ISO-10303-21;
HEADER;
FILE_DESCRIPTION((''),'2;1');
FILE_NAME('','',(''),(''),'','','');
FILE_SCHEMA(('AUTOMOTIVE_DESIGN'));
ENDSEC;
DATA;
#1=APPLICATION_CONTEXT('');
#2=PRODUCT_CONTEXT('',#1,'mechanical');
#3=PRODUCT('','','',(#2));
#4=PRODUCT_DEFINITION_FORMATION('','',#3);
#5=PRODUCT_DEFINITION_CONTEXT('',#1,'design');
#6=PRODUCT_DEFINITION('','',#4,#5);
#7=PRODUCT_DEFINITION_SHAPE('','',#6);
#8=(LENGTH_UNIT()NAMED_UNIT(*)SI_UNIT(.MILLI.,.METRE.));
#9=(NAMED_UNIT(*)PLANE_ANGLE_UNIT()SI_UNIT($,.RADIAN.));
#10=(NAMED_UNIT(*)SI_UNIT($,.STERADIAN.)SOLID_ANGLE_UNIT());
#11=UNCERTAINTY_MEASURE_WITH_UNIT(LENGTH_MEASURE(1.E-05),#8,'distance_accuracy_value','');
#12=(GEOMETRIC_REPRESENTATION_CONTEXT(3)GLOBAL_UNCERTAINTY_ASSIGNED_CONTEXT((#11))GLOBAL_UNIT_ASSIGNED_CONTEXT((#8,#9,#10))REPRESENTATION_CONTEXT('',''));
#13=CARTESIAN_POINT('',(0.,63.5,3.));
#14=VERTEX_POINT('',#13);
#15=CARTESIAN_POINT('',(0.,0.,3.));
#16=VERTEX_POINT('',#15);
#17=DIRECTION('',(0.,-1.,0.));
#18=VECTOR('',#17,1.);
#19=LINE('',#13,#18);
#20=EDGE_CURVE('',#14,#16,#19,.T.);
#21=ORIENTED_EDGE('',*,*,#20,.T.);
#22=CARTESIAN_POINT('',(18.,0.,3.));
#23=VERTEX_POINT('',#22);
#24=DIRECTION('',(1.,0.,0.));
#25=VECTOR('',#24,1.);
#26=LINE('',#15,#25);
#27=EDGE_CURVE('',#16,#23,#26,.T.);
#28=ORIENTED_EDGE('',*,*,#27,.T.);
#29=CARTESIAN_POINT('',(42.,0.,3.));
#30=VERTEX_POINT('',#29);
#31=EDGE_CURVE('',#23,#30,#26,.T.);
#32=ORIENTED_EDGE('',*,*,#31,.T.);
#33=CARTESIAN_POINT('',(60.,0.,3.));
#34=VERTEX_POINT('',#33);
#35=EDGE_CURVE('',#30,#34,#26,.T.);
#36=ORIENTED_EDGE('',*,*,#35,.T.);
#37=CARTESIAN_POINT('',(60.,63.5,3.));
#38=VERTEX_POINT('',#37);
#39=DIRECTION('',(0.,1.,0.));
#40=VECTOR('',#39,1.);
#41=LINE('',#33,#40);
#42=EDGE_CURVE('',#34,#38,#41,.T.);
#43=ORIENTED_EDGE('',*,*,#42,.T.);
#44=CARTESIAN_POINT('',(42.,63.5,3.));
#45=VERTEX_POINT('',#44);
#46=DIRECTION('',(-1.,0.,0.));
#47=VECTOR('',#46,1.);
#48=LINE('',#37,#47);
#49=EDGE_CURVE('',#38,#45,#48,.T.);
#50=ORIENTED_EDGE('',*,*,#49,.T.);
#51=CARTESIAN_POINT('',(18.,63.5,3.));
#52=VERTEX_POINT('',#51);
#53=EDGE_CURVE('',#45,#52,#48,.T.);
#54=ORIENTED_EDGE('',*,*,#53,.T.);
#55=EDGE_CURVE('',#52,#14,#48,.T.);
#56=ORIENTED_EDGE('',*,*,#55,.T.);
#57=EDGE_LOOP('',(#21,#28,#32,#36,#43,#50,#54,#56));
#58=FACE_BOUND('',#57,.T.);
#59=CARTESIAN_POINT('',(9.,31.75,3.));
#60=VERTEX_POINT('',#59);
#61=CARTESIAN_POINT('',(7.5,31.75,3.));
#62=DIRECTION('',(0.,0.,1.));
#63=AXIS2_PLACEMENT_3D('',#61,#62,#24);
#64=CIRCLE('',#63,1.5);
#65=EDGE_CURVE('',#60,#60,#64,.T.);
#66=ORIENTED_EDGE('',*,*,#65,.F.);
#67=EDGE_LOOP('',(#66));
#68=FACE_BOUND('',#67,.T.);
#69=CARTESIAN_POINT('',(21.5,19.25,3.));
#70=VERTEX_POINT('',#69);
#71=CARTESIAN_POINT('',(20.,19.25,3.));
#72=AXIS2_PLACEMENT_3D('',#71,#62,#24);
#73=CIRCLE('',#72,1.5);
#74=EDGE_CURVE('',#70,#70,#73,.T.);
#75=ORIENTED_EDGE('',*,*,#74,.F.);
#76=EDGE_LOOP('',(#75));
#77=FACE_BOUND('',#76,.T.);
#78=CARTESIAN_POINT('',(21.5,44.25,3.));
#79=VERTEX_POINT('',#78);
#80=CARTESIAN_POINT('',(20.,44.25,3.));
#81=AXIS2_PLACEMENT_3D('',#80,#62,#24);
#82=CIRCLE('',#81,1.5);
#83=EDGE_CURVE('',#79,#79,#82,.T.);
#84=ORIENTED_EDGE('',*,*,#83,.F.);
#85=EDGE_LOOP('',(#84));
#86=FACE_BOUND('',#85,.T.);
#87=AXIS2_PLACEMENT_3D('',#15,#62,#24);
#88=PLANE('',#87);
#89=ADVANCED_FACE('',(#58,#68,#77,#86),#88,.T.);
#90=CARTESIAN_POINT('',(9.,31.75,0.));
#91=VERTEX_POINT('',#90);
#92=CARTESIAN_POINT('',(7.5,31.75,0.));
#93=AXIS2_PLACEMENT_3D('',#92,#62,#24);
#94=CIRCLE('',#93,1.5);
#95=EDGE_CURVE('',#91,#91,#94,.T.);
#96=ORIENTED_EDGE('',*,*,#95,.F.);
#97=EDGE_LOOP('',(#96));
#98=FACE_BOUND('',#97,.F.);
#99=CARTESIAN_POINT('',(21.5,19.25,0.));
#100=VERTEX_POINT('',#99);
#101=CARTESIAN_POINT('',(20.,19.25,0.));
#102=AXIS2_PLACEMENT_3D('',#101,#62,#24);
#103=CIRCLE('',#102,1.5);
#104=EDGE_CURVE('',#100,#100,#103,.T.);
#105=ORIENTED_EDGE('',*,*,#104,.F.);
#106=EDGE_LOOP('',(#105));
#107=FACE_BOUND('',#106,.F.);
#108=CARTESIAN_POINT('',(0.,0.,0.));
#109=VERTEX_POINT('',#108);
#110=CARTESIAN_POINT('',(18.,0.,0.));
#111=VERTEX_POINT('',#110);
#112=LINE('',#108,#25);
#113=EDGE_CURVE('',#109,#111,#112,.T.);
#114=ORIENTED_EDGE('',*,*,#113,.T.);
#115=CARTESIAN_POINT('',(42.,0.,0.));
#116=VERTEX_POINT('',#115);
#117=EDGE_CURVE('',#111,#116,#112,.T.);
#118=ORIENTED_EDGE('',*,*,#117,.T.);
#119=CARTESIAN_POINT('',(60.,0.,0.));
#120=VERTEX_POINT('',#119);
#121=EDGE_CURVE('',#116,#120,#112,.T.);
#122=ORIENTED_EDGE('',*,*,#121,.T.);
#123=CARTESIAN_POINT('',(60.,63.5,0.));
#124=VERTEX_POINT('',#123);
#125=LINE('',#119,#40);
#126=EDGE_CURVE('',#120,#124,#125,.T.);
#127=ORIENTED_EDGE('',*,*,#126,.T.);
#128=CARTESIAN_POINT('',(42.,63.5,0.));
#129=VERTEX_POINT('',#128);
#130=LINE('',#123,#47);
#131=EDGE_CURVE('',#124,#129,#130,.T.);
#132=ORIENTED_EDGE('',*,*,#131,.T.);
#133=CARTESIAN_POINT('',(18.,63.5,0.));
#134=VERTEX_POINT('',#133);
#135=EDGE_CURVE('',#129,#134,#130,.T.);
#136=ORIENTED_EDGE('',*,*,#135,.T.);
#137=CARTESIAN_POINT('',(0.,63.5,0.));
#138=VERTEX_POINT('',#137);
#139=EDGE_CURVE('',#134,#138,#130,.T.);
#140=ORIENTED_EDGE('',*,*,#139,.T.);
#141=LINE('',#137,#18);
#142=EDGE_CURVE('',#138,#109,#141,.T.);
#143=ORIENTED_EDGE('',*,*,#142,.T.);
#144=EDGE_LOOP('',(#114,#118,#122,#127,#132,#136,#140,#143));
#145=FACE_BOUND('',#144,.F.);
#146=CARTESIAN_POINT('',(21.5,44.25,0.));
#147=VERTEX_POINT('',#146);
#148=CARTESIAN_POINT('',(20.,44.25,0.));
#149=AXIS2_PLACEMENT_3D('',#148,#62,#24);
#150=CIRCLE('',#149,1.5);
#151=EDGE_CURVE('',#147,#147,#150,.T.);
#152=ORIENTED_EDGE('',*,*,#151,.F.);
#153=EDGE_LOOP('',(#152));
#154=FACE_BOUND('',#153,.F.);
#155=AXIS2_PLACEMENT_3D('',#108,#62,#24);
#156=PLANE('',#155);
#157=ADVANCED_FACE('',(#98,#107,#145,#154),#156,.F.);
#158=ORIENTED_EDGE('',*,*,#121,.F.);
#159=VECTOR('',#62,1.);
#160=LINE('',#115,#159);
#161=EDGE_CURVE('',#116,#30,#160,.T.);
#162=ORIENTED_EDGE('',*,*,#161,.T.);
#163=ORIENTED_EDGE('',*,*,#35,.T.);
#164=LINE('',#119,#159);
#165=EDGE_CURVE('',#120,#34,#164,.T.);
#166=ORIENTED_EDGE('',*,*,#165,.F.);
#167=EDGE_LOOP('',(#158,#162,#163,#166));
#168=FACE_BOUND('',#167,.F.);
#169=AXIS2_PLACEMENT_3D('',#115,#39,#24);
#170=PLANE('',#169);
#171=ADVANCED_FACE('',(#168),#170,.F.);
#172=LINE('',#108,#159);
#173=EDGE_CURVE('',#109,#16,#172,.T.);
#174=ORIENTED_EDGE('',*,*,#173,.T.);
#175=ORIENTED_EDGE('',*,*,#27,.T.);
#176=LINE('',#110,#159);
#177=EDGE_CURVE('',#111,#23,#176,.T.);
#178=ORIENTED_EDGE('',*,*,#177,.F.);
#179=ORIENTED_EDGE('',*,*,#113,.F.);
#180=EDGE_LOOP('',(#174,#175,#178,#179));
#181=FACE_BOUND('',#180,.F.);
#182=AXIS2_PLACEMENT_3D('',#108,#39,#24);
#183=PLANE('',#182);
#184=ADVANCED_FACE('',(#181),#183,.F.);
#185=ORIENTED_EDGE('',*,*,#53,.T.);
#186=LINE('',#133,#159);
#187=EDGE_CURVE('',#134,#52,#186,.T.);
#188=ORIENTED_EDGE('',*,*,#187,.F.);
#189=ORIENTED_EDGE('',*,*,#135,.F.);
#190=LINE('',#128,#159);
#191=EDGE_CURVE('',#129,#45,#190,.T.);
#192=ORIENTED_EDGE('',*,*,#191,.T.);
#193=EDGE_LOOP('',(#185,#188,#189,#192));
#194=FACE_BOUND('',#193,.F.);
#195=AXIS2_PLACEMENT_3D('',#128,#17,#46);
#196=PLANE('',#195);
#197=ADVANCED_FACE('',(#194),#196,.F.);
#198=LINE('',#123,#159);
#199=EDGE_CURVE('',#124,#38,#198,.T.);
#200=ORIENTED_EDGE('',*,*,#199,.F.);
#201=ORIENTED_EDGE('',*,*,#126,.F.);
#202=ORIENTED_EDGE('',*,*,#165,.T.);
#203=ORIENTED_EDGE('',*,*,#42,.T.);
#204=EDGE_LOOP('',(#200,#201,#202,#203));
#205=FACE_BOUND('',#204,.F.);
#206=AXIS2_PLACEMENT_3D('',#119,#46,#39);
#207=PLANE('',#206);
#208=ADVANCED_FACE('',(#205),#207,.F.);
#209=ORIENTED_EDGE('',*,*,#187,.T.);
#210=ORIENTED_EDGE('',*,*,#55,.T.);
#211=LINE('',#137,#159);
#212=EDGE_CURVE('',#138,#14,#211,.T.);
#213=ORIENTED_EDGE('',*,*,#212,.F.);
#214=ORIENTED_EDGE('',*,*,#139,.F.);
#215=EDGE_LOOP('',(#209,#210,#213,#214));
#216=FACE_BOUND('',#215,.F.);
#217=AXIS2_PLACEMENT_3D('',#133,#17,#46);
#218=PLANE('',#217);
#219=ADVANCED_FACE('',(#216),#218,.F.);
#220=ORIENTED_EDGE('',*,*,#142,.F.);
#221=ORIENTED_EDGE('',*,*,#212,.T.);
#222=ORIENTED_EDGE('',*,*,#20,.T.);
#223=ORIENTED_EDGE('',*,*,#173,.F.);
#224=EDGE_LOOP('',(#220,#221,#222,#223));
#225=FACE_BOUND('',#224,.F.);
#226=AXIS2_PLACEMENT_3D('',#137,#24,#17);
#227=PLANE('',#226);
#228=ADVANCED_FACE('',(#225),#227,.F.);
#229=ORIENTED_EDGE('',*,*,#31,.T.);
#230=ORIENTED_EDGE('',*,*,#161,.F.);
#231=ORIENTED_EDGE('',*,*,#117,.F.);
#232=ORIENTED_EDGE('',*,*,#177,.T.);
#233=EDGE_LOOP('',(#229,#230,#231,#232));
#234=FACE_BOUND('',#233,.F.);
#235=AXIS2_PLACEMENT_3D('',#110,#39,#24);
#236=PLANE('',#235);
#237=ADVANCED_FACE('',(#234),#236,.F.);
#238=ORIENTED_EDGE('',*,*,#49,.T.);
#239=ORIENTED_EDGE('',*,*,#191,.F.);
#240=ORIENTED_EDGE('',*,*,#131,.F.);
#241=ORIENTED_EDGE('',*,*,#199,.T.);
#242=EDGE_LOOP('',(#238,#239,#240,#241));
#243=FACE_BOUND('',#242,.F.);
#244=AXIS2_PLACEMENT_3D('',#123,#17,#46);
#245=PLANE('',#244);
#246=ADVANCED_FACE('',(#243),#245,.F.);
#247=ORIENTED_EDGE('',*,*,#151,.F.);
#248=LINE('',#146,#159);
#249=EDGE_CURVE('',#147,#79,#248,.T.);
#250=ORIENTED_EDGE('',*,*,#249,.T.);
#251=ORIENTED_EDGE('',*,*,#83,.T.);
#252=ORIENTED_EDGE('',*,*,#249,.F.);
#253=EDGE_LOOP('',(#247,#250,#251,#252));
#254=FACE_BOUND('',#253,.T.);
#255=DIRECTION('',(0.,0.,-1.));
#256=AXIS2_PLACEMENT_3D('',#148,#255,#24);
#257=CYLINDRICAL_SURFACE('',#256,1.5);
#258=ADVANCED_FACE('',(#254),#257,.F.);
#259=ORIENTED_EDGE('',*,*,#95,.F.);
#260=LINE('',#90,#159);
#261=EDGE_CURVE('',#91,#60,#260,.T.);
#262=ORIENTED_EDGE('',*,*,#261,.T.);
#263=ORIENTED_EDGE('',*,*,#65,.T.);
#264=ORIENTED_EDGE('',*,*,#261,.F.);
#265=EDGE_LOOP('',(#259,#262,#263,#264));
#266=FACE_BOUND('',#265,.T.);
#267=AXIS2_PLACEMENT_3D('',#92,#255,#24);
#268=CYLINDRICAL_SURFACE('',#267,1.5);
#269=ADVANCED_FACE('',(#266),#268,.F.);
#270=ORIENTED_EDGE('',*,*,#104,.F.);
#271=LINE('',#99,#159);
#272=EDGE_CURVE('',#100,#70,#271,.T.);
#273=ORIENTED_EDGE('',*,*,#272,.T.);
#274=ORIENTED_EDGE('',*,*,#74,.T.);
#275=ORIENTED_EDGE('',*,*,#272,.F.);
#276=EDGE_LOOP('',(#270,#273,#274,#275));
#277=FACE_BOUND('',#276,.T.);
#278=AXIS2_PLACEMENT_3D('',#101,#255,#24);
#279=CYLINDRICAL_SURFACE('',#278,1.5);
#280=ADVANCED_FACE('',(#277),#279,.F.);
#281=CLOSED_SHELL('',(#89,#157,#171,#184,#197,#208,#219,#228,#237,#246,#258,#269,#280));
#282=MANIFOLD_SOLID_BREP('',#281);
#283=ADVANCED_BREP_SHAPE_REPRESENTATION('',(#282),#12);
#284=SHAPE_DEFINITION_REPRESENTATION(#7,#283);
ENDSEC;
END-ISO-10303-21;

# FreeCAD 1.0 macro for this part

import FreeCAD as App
import Part
import Sketcher
from FreeCAD import Vector
Q = App.Units.Quantity

doc = App.newDocument("Part")
body = doc.addObject("PartDesign::Body", "Body")

sketch1 = body.newObject("Sketcher::SketchObject", "Sketch")
sketch1.AttachmentSupport = (doc.getObject("XY_Plane"), [""])
sketch1.MapMode = "FlatFace"
sketch1.addGeometry(Part.LineSegment(Vector(0, 63.5, 0), Vector(0, 0, 0)), False)
sketch1.addGeometry(Part.LineSegment(Vector(0, 0, 0), Vector(60, 0, 0)), False)
sketch1.addGeometry(Part.LineSegment(Vector(60, 0, 0), Vector(60, 63.5, 0)), False)
sketch1.addGeometry(Part.LineSegment(Vector(60, 63.5, 0), Vector(0, 63.5, 0)), False)
sketch1.addGeometry(Part.Circle(Vector(20, 19.2, 0), Vector(0, 0, 1), 1.5), False)
sketch1.addGeometry(Part.Circle(Vector(7.5, 31.8, 0), Vector(0, 0, 1), 1.5), False)
sketch1.addGeometry(Part.Circle(Vector(20, 44.2, 0), Vector(0, 0, 1), 1.5), False)
sketch1.addConstraint(Sketcher.Constraint("Coincident", 0, 2, 1, 1))
sketch1.addConstraint(Sketcher.Constraint("Coincident", 1, 2, 2, 1))
sketch1.addConstraint(Sketcher.Constraint("Coincident", 2, 2, 3, 1))
sketch1.addConstraint(Sketcher.Constraint("Coincident", 3, 2, 0, 1))
sketch1.addConstraint(Sketcher.Constraint("Vertical", 0))
sketch1.addConstraint(Sketcher.Constraint("Horizontal", 1))
sketch1.addConstraint(Sketcher.Constraint("Vertical", 2))
sketch1.addConstraint(Sketcher.Constraint("Horizontal", 3))
sketch1.addConstraint(Sketcher.Constraint("Coincident", 0, 2, -1, 1))
sketch1.addConstraint(Sketcher.Constraint("Equal", 4, 5))
sketch1.addConstraint(Sketcher.Constraint("Equal", 5, 6))
sketch1.addConstraint(Sketcher.Constraint("Vertical", 4, 3, 6, 3))
sketch1.addConstraint(Sketcher.Constraint("DistanceY", 0, 2, 0, 1, Q("2.5 in")))
sketch1.addConstraint(Sketcher.Constraint("Diameter", 4, Q("0.1181 in")))
sketch1.addConstraint(Sketcher.Constraint("DistanceY", -1, 1, 5, 3, Q("1.25 in")))
sketch1.addConstraint(Sketcher.Constraint("DistanceX", 1, 1, 1, 2, Q("2.3622 in")))
sketch1.addConstraint(Sketcher.Constraint("DistanceX", -1, 1, 4, 3, Q("0.7874 in")))
sketch1.addConstraint(Sketcher.Constraint("DistanceY", -1, 1, 4, 3, Q("19.25 mm")))
sketch1.addConstraint(Sketcher.Constraint("DistanceX", -1, 1, 5, 3, Q("7.5 mm")))
sketch1.addConstraint(Sketcher.Constraint("DistanceY", -1, 1, 6, 3, Q("44.25 mm")))
pad1 = body.newObject("PartDesign::Pad", "Pad")
pad1.Profile = sketch1
pad1.Length = Q("0.1181102 in")

doc.recompute()
